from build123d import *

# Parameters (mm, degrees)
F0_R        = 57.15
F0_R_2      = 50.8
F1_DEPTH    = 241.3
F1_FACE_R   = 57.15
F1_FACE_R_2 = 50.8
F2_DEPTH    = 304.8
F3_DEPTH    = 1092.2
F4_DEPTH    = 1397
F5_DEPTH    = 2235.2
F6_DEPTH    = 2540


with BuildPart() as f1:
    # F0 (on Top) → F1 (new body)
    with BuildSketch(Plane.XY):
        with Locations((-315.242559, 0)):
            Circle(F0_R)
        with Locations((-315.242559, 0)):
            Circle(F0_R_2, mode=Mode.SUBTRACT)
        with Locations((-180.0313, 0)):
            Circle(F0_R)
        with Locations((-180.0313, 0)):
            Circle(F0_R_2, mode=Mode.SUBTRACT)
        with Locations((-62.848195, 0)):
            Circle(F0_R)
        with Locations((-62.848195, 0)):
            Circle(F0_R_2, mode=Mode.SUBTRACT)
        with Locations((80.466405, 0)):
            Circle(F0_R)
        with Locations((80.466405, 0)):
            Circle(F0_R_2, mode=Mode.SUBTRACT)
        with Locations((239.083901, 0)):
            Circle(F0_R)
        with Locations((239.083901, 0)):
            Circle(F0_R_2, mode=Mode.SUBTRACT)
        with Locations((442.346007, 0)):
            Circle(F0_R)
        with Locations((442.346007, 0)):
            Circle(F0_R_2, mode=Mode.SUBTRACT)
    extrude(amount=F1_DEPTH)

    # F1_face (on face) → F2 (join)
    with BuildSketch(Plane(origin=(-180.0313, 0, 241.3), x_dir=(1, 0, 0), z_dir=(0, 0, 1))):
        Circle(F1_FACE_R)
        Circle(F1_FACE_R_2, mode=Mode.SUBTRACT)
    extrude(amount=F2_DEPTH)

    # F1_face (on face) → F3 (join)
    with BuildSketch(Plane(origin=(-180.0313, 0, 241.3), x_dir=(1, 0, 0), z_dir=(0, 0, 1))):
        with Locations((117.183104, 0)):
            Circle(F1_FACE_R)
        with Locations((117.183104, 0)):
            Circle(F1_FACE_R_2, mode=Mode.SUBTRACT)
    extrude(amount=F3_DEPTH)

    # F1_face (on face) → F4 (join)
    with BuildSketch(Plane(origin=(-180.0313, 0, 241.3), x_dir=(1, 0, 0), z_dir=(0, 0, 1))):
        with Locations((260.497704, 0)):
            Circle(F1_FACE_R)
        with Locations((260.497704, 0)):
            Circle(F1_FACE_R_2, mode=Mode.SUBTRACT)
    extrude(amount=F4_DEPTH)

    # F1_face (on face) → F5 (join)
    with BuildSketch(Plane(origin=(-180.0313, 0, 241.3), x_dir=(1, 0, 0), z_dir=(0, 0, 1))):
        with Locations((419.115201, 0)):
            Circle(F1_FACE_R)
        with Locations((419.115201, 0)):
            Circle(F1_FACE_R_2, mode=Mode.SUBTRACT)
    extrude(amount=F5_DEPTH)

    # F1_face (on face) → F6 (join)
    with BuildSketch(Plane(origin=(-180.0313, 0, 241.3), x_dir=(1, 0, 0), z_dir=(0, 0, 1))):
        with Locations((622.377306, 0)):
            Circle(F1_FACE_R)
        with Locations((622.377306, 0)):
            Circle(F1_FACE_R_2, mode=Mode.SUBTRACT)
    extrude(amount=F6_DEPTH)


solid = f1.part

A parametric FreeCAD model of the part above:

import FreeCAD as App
import Part
import Sketcher
Q = App.Units.Quantity

doc = App.newDocument("Part")
params = doc.addObject("Spreadsheet::Sheet", "Params")
for row, (alias, value) in enumerate([
    ("sketch1_diameter", "4 in"),
    ("sketch1_diameter2", "4.5 in"),
    ("pad1_length", "9.5 in"),
    ("sketch2_diameter", "4 in"),
    ("sketch2_diameter2", "4.5 in"),
    ("pad2_length", "12 in"),
    ("sketch3_diameter", "4 in"),
    ("sketch3_diameter2", "4.5 in"),
    ("pad3_length", "43 in"),
    ("sketch4_diameter", "4 in"),
    ("sketch4_diameter2", "4.5 in"),
    ("pad4_length", "55 in"),
    ("sketch5_diameter", "4 in"),
    ("sketch5_diameter2", "4.5 in"),
    ("pad5_length", "88 in"),
    ("sketch6_diameter", "4 in"),
    ("sketch6_diameter2", "4.5 in"),
    ("pad6_length", "100 in"),
], start=1):
    params.set(f"A{row}", alias)
    params.set(f"B{row}", "=" + value)
    params.setAlias(f"B{row}", alias)

body = doc.addObject("PartDesign::Body", "Body")
body.AllowCompound = True

# Sketch on XY plane
sketch1 = doc.addObject("Sketcher::SketchObject", "Sketch")
body.addObject(sketch1)
sketch1.AttachmentSupport = (doc.XY_Plane, [""])
sketch1.MapMode = "FlatFace"
sketch1.addGeometry(Part.Circle(App.Vector(-315, 0, 0), App.Vector(0, 0, 1), 57), False)
sketch1.addGeometry(Part.Circle(App.Vector(-315, 0, 0), App.Vector(0, 0, 1), 51), False)
sketch1.addGeometry(Part.Circle(App.Vector(-180, 0, 0), App.Vector(0, 0, 1), 57), False)
sketch1.addGeometry(Part.Circle(App.Vector(-180, 0, 0), App.Vector(0, 0, 1), 51), False)
sketch1.addGeometry(Part.Circle(App.Vector(-63, 0, 0), App.Vector(0, 0, 1), 57), False)
sketch1.addGeometry(Part.Circle(App.Vector(-63, 0, 0), App.Vector(0, 0, 1), 51), False)
sketch1.addGeometry(Part.Circle(App.Vector(80, 0, 0), App.Vector(0, 0, 1), 57), False)
sketch1.addGeometry(Part.Circle(App.Vector(80, 0, 0), App.Vector(0, 0, 1), 51), False)
sketch1.addGeometry(Part.Circle(App.Vector(239, 0, 0), App.Vector(0, 0, 1), 57), False)
sketch1.addGeometry(Part.Circle(App.Vector(239, 0, 0), App.Vector(0, 0, 1), 51), False)
sketch1.addGeometry(Part.Circle(App.Vector(442, 0, 0), App.Vector(0, 0, 1), 57), False)
sketch1.addGeometry(Part.Circle(App.Vector(442, 0, 0), App.Vector(0, 0, 1), 51), False)
sketch1.addConstraint(Sketcher.Constraint("Coincident", 1, 3, 0, 3))
sketch1.addConstraint(Sketcher.Constraint("Coincident", 3, 3, 2, 3))
sketch1.addConstraint(Sketcher.Constraint("Coincident", 5, 3, 4, 3))
sketch1.addConstraint(Sketcher.Constraint("Coincident", 7, 3, 6, 3))
sketch1.addConstraint(Sketcher.Constraint("Coincident", 9, 3, 8, 3))
sketch1.addConstraint(Sketcher.Constraint("Coincident", 11, 3, 10, 3))
sketch1.addConstraint(Sketcher.Constraint("Equal", 0, 2))
sketch1.addConstraint(Sketcher.Constraint("Equal", 1, 3))
sketch1.addConstraint(Sketcher.Constraint("Equal", 2, 4))
sketch1.addConstraint(Sketcher.Constraint("Equal", 3, 5))
sketch1.addConstraint(Sketcher.Constraint("Equal", 4, 6))
sketch1.addConstraint(Sketcher.Constraint("Equal", 5, 7))
sketch1.addConstraint(Sketcher.Constraint("Equal", 6, 8))
sketch1.addConstraint(Sketcher.Constraint("Equal", 7, 9))
sketch1.addConstraint(Sketcher.Constraint("Equal", 8, 10))
sketch1.addConstraint(Sketcher.Constraint("Equal", 9, 11))
sketch1.addConstraint(Sketcher.Constraint("PointOnObject", 0, 3, -1))
sketch1.addConstraint(Sketcher.Constraint("PointOnObject", 2, 3, -1))
sketch1.addConstraint(Sketcher.Constraint("PointOnObject", 4, 3, -1))
sketch1.addConstraint(Sketcher.Constraint("PointOnObject", 6, 3, -1))
sketch1.addConstraint(Sketcher.Constraint("PointOnObject", 8, 3, -1))
sketch1.addConstraint(Sketcher.Constraint("PointOnObject", 10, 3, -1))
sketch1.addConstraint(Sketcher.Constraint("Diameter", 1, Q("4 in")))
sketch1.addConstraint(Sketcher.Constraint("Diameter", 0, Q("4.5 in")))
sketch1.addConstraint(Sketcher.Constraint("DistanceX", 2, 3, -1, 1, 180.0313))
sketch1.addConstraint(Sketcher.Constraint("DistanceX", -1, 1, 8, 3, 239.083901))
sketch1.addConstraint(Sketcher.Constraint("DistanceX", 4, 3, 6, 3, 143.3146))
sketch1.addConstraint(Sketcher.Constraint("DistanceX", 6, 3, 10, 3, 361.879602))
sketch1.addConstraint(Sketcher.Constraint("DistanceX", 0, 3, -1, 1, 315.242559))
sketch1.addConstraint(Sketcher.Constraint("DistanceX", 4, 3, -1, 1, 62.848195))
sketch1.setExpression("Constraints[22]", "Params.sketch1_diameter")
sketch1.setExpression("Constraints[23]", "Params.sketch1_diameter2")
pad1 = doc.addObject("PartDesign::Pad", "Pad")
body.addObject(pad1)
pad1.Profile = sketch1
pad1.setExpression("Length", "Params.pad1_length")

# Sketch on XY plane
sketch2 = doc.addObject("Sketcher::SketchObject", "Sketch001")
body.addObject(sketch2)
sketch2.AttachmentSupport = (doc.XY_Plane, [""])
sketch2.MapMode = "FlatFace"
sketch2.AttachmentOffset = App.Placement(App.Vector(0, 0, 9.5 * 25.4), App.Rotation())
sketch2.addGeometry(Part.Circle(App.Vector(-180, 0, 0), App.Vector(0, 0, 1), 57), False)
sketch2.addGeometry(Part.Circle(App.Vector(-180, 0, 0), App.Vector(0, 0, 1), 51), False)
sketch2.addConstraint(Sketcher.Constraint("Coincident", 1, 3, 0, 3))
sketch2.addConstraint(Sketcher.Constraint("PointOnObject", 0, 3, -1))
sketch2.addConstraint(Sketcher.Constraint("Diameter", 1, Q("4 in")))
sketch2.addConstraint(Sketcher.Constraint("Diameter", 0, Q("4.5 in")))
sketch2.addConstraint(Sketcher.Constraint("DistanceX", 0, 3, -1, 1, 180.0313))
sketch2.setExpression("Constraints[2]", "Params.sketch2_diameter")
sketch2.setExpression("Constraints[3]", "Params.sketch2_diameter2")
pad2 = doc.addObject("PartDesign::Pad", "Pad001")
body.addObject(pad2)
pad2.Profile = sketch2
pad2.setExpression("Length", "Params.pad2_length")

# Sketch on XY plane
sketch3 = doc.addObject("Sketcher::SketchObject", "Sketch002")
body.addObject(sketch3)
sketch3.AttachmentSupport = (doc.XY_Plane, [""])
sketch3.MapMode = "FlatFace"
sketch3.AttachmentOffset = App.Placement(App.Vector(0, 0, 9.5 * 25.4), App.Rotation())
sketch3.addGeometry(Part.Circle(App.Vector(-63, 0, 0), App.Vector(0, 0, 1), 57), False)
sketch3.addGeometry(Part.Circle(App.Vector(-63, 0, 0), App.Vector(0, 0, 1), 51), False)
sketch3.addConstraint(Sketcher.Constraint("Coincident", 1, 3, 0, 3))
sketch3.addConstraint(Sketcher.Constraint("PointOnObject", 0, 3, -1))
sketch3.addConstraint(Sketcher.Constraint("Diameter", 1, Q("4 in")))
sketch3.addConstraint(Sketcher.Constraint("Diameter", 0, Q("4.5 in")))
sketch3.addConstraint(Sketcher.Constraint("DistanceX", 0, 3, -1, 1, 62.848196))
sketch3.setExpression("Constraints[2]", "Params.sketch3_diameter")
sketch3.setExpression("Constraints[3]", "Params.sketch3_diameter2")
pad3 = doc.addObject("PartDesign::Pad", "Pad002")
body.addObject(pad3)
pad3.Profile = sketch3
pad3.setExpression("Length", "Params.pad3_length")

# Sketch on XY plane
sketch4 = doc.addObject("Sketcher::SketchObject", "Sketch003")
body.addObject(sketch4)
sketch4.AttachmentSupport = (doc.XY_Plane, [""])
sketch4.MapMode = "FlatFace"
sketch4.AttachmentOffset = App.Placement(App.Vector(0, 0, 9.5 * 25.4), App.Rotation())
sketch4.addGeometry(Part.Circle(App.Vector(80, 0, 0), App.Vector(0, 0, 1), 57), False)
sketch4.addGeometry(Part.Circle(App.Vector(80, 0, 0), App.Vector(0, 0, 1), 51), False)
sketch4.addConstraint(Sketcher.Constraint("Coincident", 1, 3, 0, 3))
sketch4.addConstraint(Sketcher.Constraint("PointOnObject", 0, 3, -1))
sketch4.addConstraint(Sketcher.Constraint("Diameter", 1, Q("4 in")))
sketch4.addConstraint(Sketcher.Constraint("Diameter", 0, Q("4.5 in")))
sketch4.addConstraint(Sketcher.Constraint("DistanceX", -1, 1, 0, 3, 80.466404))
sketch4.setExpression("Constraints[2]", "Params.sketch4_diameter")
sketch4.setExpression("Constraints[3]", "Params.sketch4_diameter2")
pad4 = doc.addObject("PartDesign::Pad", "Pad003")
body.addObject(pad4)
pad4.Profile = sketch4
pad4.setExpression("Length", "Params.pad4_length")

# Sketch on XY plane
sketch5 = doc.addObject("Sketcher::SketchObject", "Sketch004")
body.addObject(sketch5)
sketch5.AttachmentSupport = (doc.XY_Plane, [""])
sketch5.MapMode = "FlatFace"
sketch5.AttachmentOffset = App.Placement(App.Vector(0, 0, 9.5 * 25.4), App.Rotation())
sketch5.addGeometry(Part.Circle(App.Vector(239, 0, 0), App.Vector(0, 0, 1), 57), False)
sketch5.addGeometry(Part.Circle(App.Vector(239, 0, 0), App.Vector(0, 0, 1), 51), False)
sketch5.addConstraint(Sketcher.Constraint("Coincident", 1, 3, 0, 3))
sketch5.addConstraint(Sketcher.Constraint("PointOnObject", 0, 3, -1))
sketch5.addConstraint(Sketcher.Constraint("Diameter", 1, Q("4 in")))
sketch5.addConstraint(Sketcher.Constraint("Diameter", 0, Q("4.5 in")))
sketch5.addConstraint(Sketcher.Constraint("DistanceX", -1, 1, 0, 3, 239.083901))
sketch5.setExpression("Constraints[2]", "Params.sketch5_diameter")
sketch5.setExpression("Constraints[3]", "Params.sketch5_diameter2")
pad5 = doc.addObject("PartDesign::Pad", "Pad004")
body.addObject(pad5)
pad5.Profile = sketch5
pad5.setExpression("Length", "Params.pad5_length")

# Sketch on XY plane
sketch6 = doc.addObject("Sketcher::SketchObject", "Sketch005")
body.addObject(sketch6)
sketch6.AttachmentSupport = (doc.XY_Plane, [""])
sketch6.MapMode = "FlatFace"
sketch6.AttachmentOffset = App.Placement(App.Vector(0, 0, 9.5 * 25.4), App.Rotation())
sketch6.addGeometry(Part.Circle(App.Vector(442, 0, 0), App.Vector(0, 0, 1), 57), False)
sketch6.addGeometry(Part.Circle(App.Vector(442, 0, 0), App.Vector(0, 0, 1), 51), False)
sketch6.addConstraint(Sketcher.Constraint("Coincident", 1, 3, 0, 3))
sketch6.addConstraint(Sketcher.Constraint("PointOnObject", 0, 3, -1))
sketch6.addConstraint(Sketcher.Constraint("Diameter", 1, Q("4 in")))
sketch6.addConstraint(Sketcher.Constraint("Diameter", 0, Q("4.5 in")))
sketch6.addConstraint(Sketcher.Constraint("DistanceX", -1, 1, 0, 3, 442.346006))
sketch6.setExpression("Constraints[2]", "Params.sketch6_diameter")
sketch6.setExpression("Constraints[3]", "Params.sketch6_diameter2")
pad6 = doc.addObject("PartDesign::Pad", "Pad005")
body.addObject(pad6)
pad6.Profile = sketch6
pad6.setExpression("Length", "Params.pad6_length")

doc.recompute()
